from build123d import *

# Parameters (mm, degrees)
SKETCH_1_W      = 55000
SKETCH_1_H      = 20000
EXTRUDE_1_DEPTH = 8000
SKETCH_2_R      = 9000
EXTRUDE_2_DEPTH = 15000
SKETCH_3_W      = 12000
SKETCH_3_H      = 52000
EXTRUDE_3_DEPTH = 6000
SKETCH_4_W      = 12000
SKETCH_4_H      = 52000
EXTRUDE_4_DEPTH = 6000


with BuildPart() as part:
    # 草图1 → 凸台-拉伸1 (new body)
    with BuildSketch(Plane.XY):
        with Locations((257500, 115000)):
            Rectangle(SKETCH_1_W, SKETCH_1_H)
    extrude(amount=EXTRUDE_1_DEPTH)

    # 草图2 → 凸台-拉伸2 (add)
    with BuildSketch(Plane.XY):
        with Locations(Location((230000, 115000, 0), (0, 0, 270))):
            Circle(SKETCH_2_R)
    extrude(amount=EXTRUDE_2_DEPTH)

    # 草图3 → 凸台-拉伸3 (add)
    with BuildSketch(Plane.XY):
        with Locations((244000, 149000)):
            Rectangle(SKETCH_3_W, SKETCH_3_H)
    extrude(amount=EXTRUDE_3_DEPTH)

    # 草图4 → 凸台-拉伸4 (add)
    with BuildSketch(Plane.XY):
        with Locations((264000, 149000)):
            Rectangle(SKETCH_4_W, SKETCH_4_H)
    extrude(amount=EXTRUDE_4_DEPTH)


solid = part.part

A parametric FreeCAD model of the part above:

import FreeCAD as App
import Part
import Sketcher
from FreeCAD import Vector
Q = App.Units.Quantity

doc = App.newDocument("Part")
body = doc.addObject("PartDesign::Body", "Body")

# Sketch on XY plane
sketch1 = doc.addObject("Sketcher::SketchObject", "Sketch")
body.addObject(sketch1)
sketch1.AttachmentSupport = (doc.XY_Plane, [""])
sketch1.MapMode = "FlatFace"
sketch1.addGeometry(Part.LineSegment(Vector(230000, 125000, 0), Vector(230000, 105000, 0)), False)
sketch1.addGeometry(Part.LineSegment(Vector(230000, 105000, 0), Vector(285000, 105000, 0)), False)
sketch1.addGeometry(Part.LineSegment(Vector(285000, 105000, 0), Vector(285000, 125000, 0)), False)
sketch1.addGeometry(Part.LineSegment(Vector(285000, 125000, 0), Vector(230000, 125000, 0)), False)
sketch1.addConstraint(Sketcher.Constraint("Coincident", 0, 2, 1, 1))
sketch1.addConstraint(Sketcher.Constraint("Coincident", 1, 2, 2, 1))
sketch1.addConstraint(Sketcher.Constraint("Coincident", 2, 2, 3, 1))
sketch1.addConstraint(Sketcher.Constraint("Coincident", 3, 2, 0, 1))
sketch1.addConstraint(Sketcher.Constraint("Vertical", 0))
sketch1.addConstraint(Sketcher.Constraint("Horizontal", 1))
sketch1.addConstraint(Sketcher.Constraint("Vertical", 2))
sketch1.addConstraint(Sketcher.Constraint("Horizontal", 3))
sketch1.addConstraint(Sketcher.Constraint("DistanceX", 1, 1, 1, 2, Q("55000 mm")))
sketch1.addConstraint(Sketcher.Constraint("DistanceY", 0, 2, 0, 1, Q("20000 mm")))
sketch1.addConstraint(Sketcher.Constraint("DistanceX", -1, 1, 0, 2, Q("230000 mm")))
sketch1.addConstraint(Sketcher.Constraint("DistanceY", -1, 1, 0, 2, Q("105000 mm")))
pad1 = doc.addObject("PartDesign::Pad", "Pad")
body.addObject(pad1)
pad1.Profile = sketch1
pad1.Length = 8000

# Sketch on XY plane
sketch2 = doc.addObject("Sketcher::SketchObject", "Sketch001")
body.addObject(sketch2)
sketch2.AttachmentSupport = (doc.XY_Plane, [""])
sketch2.MapMode = "FlatFace"
sketch2.addGeometry(Part.Circle(Vector(230000, 115000, 0), Vector(0, 0, 1), 9000), False)
sketch2.addConstraint(Sketcher.Constraint("Diameter", 0, Q("18000 mm")))
sketch2.addConstraint(Sketcher.Constraint("DistanceX", -1, 1, 0, 3, Q("230000 mm")))
sketch2.addConstraint(Sketcher.Constraint("DistanceY", -1, 1, 0, 3, Q("115000 mm")))
pad2 = doc.addObject("PartDesign::Pad", "Pad001")
body.addObject(pad2)
pad2.Profile = sketch2
pad2.Length = 15000

# Sketch on XY plane
sketch3 = doc.addObject("Sketcher::SketchObject", "Sketch002")
body.addObject(sketch3)
sketch3.AttachmentSupport = (doc.XY_Plane, [""])
sketch3.MapMode = "FlatFace"
sketch3.addGeometry(Part.LineSegment(Vector(238000, 175000, 0), Vector(238000, 123000, 0)), False)
sketch3.addGeometry(Part.LineSegment(Vector(238000, 123000, 0), Vector(250000, 123000, 0)), False)
sketch3.addGeometry(Part.LineSegment(Vector(250000, 123000, 0), Vector(250000, 175000, 0)), False)
sketch3.addGeometry(Part.LineSegment(Vector(250000, 175000, 0), Vector(238000, 175000, 0)), False)
sketch3.addConstraint(Sketcher.Constraint("Coincident", 0, 2, 1, 1))
sketch3.addConstraint(Sketcher.Constraint("Coincident", 1, 2, 2, 1))
sketch3.addConstraint(Sketcher.Constraint("Coincident", 2, 2, 3, 1))
sketch3.addConstraint(Sketcher.Constraint("Coincident", 3, 2, 0, 1))
sketch3.addConstraint(Sketcher.Constraint("Vertical", 0))
sketch3.addConstraint(Sketcher.Constraint("Horizontal", 1))
sketch3.addConstraint(Sketcher.Constraint("Vertical", 2))
sketch3.addConstraint(Sketcher.Constraint("Horizontal", 3))
sketch3.addConstraint(Sketcher.Constraint("DistanceX", 1, 1, 1, 2, Q("12000 mm")))
sketch3.addConstraint(Sketcher.Constraint("DistanceY", 0, 2, 0, 1, Q("52000 mm")))
sketch3.addConstraint(Sketcher.Constraint("DistanceX", -1, 1, 0, 2, Q("238000 mm")))
sketch3.addConstraint(Sketcher.Constraint("DistanceY", -1, 1, 0, 2, Q("123000 mm")))
pad3 = doc.addObject("PartDesign::Pad", "Pad002")
body.addObject(pad3)
pad3.Profile = sketch3
pad3.Length = 6000

# Sketch on XY plane
sketch4 = doc.addObject("Sketcher::SketchObject", "Sketch003")
body.addObject(sketch4)
sketch4.AttachmentSupport = (doc.XY_Plane, [""])
sketch4.MapMode = "FlatFace"
sketch4.addGeometry(Part.LineSegment(Vector(258000, 175000, 0), Vector(258000, 123000, 0)), False)
sketch4.addGeometry(Part.LineSegment(Vector(258000, 123000, 0), Vector(270000, 123000, 0)), False)
sketch4.addGeometry(Part.LineSegment(Vector(270000, 123000, 0), Vector(270000, 175000, 0)), False)
sketch4.addGeometry(Part.LineSegment(Vector(270000, 175000, 0), Vector(258000, 175000, 0)), False)
sketch4.addConstraint(Sketcher.Constraint("Coincident", 0, 2, 1, 1))
sketch4.addConstraint(Sketcher.Constraint("Coincident", 1, 2, 2, 1))
sketch4.addConstraint(Sketcher.Constraint("Coincident", 2, 2, 3, 1))
sketch4.addConstraint(Sketcher.Constraint("Coincident", 3, 2, 0, 1))
sketch4.addConstraint(Sketcher.Constraint("Vertical", 0))
sketch4.addConstraint(Sketcher.Constraint("Horizontal", 1))
sketch4.addConstraint(Sketcher.Constraint("Vertical", 2))
sketch4.addConstraint(Sketcher.Constraint("Horizontal", 3))
sketch4.addConstraint(Sketcher.Constraint("DistanceX", 1, 1, 1, 2, Q("12000 mm")))
sketch4.addConstraint(Sketcher.Constraint("DistanceY", 0, 2, 0, 1, Q("52000 mm")))
sketch4.addConstraint(Sketcher.Constraint("DistanceX", -1, 1, 0, 2, Q("258000 mm")))
sketch4.addConstraint(Sketcher.Constraint("DistanceY", -1, 1, 0, 2, Q("123000 mm")))
pad4 = doc.addObject("PartDesign::Pad", "Pad003")
body.addObject(pad4)
pad4.Profile = sketch4
pad4.Length = 6000

doc.recompute()
